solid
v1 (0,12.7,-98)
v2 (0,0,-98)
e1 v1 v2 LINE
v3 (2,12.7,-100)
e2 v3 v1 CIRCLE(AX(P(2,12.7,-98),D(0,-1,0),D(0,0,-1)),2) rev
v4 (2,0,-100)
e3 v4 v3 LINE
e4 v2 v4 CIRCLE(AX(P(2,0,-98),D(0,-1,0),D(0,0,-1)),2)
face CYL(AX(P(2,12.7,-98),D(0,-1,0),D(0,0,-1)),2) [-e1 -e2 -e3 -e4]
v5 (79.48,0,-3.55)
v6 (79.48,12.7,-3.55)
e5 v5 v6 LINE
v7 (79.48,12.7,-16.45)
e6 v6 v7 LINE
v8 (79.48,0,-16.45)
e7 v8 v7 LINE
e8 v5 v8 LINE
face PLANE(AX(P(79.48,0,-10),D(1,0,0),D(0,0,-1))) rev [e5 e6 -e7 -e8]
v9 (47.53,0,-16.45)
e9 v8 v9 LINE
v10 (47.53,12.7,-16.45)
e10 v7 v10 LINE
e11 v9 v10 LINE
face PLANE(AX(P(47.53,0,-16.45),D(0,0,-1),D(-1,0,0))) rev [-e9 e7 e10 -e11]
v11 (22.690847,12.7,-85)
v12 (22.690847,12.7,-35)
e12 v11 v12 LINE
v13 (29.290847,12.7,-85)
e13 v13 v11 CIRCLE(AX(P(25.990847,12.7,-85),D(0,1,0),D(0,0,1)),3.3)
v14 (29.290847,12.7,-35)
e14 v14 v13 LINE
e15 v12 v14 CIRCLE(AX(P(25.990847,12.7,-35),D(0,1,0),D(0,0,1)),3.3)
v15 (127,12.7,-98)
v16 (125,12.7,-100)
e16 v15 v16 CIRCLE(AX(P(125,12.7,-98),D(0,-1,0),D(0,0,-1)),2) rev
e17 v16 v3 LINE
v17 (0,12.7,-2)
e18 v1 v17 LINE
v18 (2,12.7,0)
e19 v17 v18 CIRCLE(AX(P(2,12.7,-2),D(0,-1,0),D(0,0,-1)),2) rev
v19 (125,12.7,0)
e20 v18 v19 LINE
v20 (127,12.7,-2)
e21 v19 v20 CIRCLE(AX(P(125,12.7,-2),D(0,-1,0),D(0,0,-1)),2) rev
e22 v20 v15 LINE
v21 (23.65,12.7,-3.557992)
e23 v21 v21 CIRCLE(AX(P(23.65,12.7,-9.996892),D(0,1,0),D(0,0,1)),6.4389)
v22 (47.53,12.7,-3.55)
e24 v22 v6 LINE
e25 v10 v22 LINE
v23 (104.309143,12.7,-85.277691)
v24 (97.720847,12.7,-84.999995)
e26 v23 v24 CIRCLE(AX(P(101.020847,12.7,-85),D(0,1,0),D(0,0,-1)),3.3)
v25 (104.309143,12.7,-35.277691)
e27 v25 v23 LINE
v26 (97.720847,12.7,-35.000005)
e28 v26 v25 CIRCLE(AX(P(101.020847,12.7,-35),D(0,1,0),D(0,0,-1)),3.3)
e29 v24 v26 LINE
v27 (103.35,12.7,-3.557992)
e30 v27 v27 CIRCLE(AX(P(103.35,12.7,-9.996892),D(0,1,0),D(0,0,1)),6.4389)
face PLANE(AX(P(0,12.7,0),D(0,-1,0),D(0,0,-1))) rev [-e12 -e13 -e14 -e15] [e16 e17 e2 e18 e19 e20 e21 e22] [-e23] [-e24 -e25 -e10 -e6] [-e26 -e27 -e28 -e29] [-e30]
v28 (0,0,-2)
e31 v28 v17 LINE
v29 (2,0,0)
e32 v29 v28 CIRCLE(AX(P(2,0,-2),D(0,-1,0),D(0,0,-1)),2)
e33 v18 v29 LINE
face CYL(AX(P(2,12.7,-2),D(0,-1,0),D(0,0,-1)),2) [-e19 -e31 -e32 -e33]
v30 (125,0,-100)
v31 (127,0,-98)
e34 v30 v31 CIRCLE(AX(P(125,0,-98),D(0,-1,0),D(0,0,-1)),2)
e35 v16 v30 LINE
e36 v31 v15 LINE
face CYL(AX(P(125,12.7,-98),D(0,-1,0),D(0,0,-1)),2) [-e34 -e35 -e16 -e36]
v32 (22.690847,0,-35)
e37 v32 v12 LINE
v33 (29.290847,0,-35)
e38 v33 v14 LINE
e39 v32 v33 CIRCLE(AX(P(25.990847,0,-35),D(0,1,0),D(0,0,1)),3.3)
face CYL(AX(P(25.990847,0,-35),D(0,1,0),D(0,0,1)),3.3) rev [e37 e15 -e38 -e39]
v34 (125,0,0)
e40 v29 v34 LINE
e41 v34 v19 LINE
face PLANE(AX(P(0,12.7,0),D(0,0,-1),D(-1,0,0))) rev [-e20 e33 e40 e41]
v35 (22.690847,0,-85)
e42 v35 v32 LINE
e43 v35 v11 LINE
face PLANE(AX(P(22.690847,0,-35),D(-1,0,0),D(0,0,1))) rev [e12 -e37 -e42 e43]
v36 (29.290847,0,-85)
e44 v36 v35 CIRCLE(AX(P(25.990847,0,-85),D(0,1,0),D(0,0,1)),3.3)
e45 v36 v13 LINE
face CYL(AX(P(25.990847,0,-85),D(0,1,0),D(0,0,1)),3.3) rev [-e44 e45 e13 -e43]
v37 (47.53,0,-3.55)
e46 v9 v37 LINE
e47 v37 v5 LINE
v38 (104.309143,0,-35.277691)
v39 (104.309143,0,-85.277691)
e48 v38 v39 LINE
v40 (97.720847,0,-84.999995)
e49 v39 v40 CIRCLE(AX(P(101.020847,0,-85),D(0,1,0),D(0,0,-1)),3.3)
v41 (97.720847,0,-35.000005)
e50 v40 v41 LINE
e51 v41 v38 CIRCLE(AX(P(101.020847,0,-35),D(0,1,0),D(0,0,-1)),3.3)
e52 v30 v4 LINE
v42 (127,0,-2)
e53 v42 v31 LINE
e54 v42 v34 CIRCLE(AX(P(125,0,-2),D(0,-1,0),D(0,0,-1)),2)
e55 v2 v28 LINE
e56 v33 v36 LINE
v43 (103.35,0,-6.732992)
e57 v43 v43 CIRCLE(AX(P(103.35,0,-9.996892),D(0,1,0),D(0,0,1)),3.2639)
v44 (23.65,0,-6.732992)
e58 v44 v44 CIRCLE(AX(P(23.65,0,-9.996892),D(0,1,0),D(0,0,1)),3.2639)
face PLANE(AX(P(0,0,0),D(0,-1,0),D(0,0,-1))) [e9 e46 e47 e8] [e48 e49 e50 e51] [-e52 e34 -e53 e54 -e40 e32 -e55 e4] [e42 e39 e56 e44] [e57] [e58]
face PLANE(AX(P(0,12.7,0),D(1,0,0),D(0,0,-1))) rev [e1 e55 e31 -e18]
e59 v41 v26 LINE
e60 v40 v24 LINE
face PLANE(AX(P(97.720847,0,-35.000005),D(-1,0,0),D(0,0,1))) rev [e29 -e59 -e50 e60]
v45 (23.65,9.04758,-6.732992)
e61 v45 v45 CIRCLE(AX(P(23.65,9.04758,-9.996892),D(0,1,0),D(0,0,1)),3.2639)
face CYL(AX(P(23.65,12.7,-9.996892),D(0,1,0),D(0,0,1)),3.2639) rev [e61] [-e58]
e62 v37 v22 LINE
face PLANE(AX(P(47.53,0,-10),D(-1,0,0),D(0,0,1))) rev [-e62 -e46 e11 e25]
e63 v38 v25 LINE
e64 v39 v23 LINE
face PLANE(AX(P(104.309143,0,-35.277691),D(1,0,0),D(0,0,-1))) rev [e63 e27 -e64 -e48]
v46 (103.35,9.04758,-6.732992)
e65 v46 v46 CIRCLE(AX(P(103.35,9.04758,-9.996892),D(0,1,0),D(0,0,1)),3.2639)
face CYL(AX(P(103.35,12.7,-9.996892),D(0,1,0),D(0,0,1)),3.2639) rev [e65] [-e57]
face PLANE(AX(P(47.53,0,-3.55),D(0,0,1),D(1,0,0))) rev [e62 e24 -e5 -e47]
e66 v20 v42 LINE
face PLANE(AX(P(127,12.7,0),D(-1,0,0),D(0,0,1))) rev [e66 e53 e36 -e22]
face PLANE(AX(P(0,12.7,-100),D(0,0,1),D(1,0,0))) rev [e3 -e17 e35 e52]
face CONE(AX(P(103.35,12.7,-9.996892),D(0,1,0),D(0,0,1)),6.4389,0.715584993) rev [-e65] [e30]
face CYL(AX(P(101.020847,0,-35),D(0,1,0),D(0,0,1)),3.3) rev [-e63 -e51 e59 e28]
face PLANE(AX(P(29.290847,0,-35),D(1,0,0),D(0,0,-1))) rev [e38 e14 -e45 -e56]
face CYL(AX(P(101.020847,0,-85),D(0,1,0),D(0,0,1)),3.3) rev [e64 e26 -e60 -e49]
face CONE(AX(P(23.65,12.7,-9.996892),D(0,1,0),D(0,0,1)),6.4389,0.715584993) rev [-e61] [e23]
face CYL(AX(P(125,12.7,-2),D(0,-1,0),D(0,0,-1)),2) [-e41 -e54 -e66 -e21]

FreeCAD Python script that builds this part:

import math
import FreeCAD as App
import Part
import Sketcher


def edges_at(feature, points):
    """Names of the edges that pass closest to the given points."""
    edges = feature.Shape.Edges
    near = lambda p: min(range(len(edges)), key=lambda i: edges[i].distToShape(Part.Vertex(*p))[0])
    return sorted({f"Edge{near(p) + 1}" for p in points})


def add_polygon(sketch, points):
    """Adds a closed chain of lines whose ends are joined by coincident constraints."""
    first, n = sketch.GeometryCount, len(points)
    for a, b in zip(points, points[1:] + points[:1]):
        sketch.addGeometry(Part.LineSegment(App.Vector(*a, 0), App.Vector(*b, 0)), False)
    for i in range(n):
        sketch.addConstraint(Sketcher.Constraint("Coincident", first + i, 2, first + (i + 1) % n, 1))

doc = App.newDocument("Part")
params = doc.addObject("Spreadsheet::Sheet", "Params")
for row, (alias, value) in enumerate([
    ("sketch1_width", "127 mm"),
    ("sketch1_height", "100 mm"),
    ("pad1_length", "12.7 mm"),
    ("sketch2_height", "12.9 mm"),
    ("sketch2_width", "31.95 mm"),
    ("pocket1_length", "12.7 mm"),
    ("sketch3_radius", "3.3 mm"),
    ("sketch3_height", "50 mm"),
    ("fillet_radius", "2 mm"),
    ("hole_diameter", "6.5278 mm"),
    ("hole_csink_diameter", "12.8778 mm"),
], start=1):
    params.set(f"A{row}", alias)
    params.set(f"B{row}", "=" + value)
    params.setAlias(f"B{row}", alias)

body = doc.addObject("PartDesign::Body", "Body")

sketch1 = body.newObject("Sketcher::SketchObject", "Sketch")
sketch1.AttachmentSupport = (doc.getObject("XZ_Plane"), [""])
sketch1.MapMode = "FlatFace"
add_polygon(sketch1, [(0, -100), (0, 0), (127, 0), (127, -100)])
sketch1.addConstraint(Sketcher.Constraint("Vertical", 0))
sketch1.addConstraint(Sketcher.Constraint("Horizontal", 1))
sketch1.addConstraint(Sketcher.Constraint("Vertical", 2))
sketch1.addConstraint(Sketcher.Constraint("Horizontal", 3))
sketch1.addConstraint(Sketcher.Constraint("Coincident", 0, 2, -1, 1))
sketch1.addConstraint(Sketcher.Constraint("DistanceX", 1, 1, 1, 2, 127.0))
sketch1.addConstraint(Sketcher.Constraint("DistanceY", 0, 1, 0, 2, 100.0))
sketch1.setExpression("Constraints[9]", "Params.sketch1_width")
sketch1.setExpression("Constraints[10]", "Params.sketch1_height")
pad1 = body.newObject("PartDesign::Pad", "Pad")
pad1.Profile = sketch1
pad1.setExpression("Length", "Params.pad1_length")
pad1.Reversed = True

sketch2 = body.newObject("Sketcher::SketchObject", "Sketch001")
sketch2.AttachmentSupport = (doc.getObject("XZ_Plane"), [""])
sketch2.MapMode = "FlatFace"
sketch2.AttachmentOffset = App.Placement(App.Vector(0, 0, -12.7), App.Rotation())
add_polygon(sketch2, [(48, -16), (48, -4), (79, -4), (79, -16)])
sketch2.addConstraint(Sketcher.Constraint("Vertical", 0))
sketch2.addConstraint(Sketcher.Constraint("Horizontal", 1))
sketch2.addConstraint(Sketcher.Constraint("Vertical", 2))
sketch2.addConstraint(Sketcher.Constraint("Horizontal", 3))
sketch2.addConstraint(Sketcher.Constraint("DistanceY", 0, 1, 0, 2, 12.9))
sketch2.addConstraint(Sketcher.Constraint("DistanceX", 1, 1, 1, 2, 31.95))
sketch2.addConstraint(Sketcher.Constraint("DistanceX", -1, 1, 0, 2, 47.53))
sketch2.addConstraint(Sketcher.Constraint("DistanceY", 0, 2, -1, 1, 3.55))
sketch2.setExpression("Constraints[8]", "Params.sketch2_height")
sketch2.setExpression("Constraints[9]", "Params.sketch2_width")
pocket1 = body.newObject("PartDesign::Pocket", "Pocket")
pocket1.Profile = sketch2
pocket1.setExpression("Length", "Params.pocket1_length")
pocket1.Reversed = True

sketch3 = body.newObject("Sketcher::SketchObject", "Sketch002")
sketch3.AttachmentSupport = (doc.getObject("XZ_Plane"), [""])
sketch3.MapMode = "FlatFace"
sketch3.AttachmentOffset = App.Placement(App.Vector(0, 0, -12.7), App.Rotation())
sketch3.addGeometry(Part.LineSegment(App.Vector(22.7, -85, 0), App.Vector(22.7, -35, 0)), False)
sketch3.addGeometry(Part.ArcOfCircle(Part.Circle(App.Vector(26, -35, 0), App.Vector(0, 0, 1), 3.3), math.radians(0), math.radians(180)), False)
sketch3.addGeometry(Part.LineSegment(App.Vector(29.3, -35, 0), App.Vector(29.3, -85, 0)), False)
sketch3.addGeometry(Part.ArcOfCircle(Part.Circle(App.Vector(26, -85, 0), App.Vector(0, 0, 1), 3.3), math.radians(180), math.radians(360)), False)
sketch3.addGeometry(Part.LineSegment(App.Vector(97.7, -85, 0), App.Vector(97.7, -35, 0)), False)
sketch3.addGeometry(Part.ArcOfCircle(Part.Circle(App.Vector(101, -35, 0), App.Vector(0, 0, 1), 3.3), math.radians(-5), math.radians(180)), False)
sketch3.addGeometry(Part.LineSegment(App.Vector(104.3, -35.3, 0), App.Vector(104.3, -85.3, 0)), False)
sketch3.addGeometry(Part.ArcOfCircle(Part.Circle(App.Vector(101, -85, 0), App.Vector(0, 0, 1), 3.3), math.radians(180), math.radians(355)), False)
sketch3.addConstraint(Sketcher.Constraint("Tangent", 0, 2, 1, 2))
sketch3.addConstraint(Sketcher.Constraint("Tangent", 1, 1, 2, 1))
sketch3.addConstraint(Sketcher.Constraint("Tangent", 2, 2, 3, 2))
sketch3.addConstraint(Sketcher.Constraint("Tangent", 3, 1, 0, 1))
sketch3.addConstraint(Sketcher.Constraint("Tangent", 4, 2, 5, 2))
sketch3.addConstraint(Sketcher.Constraint("Coincident", 5, 1, 6, 1))
sketch3.addConstraint(Sketcher.Constraint("Coincident", 6, 2, 7, 2))
sketch3.addConstraint(Sketcher.Constraint("Tangent", 7, 1, 4, 1))
sketch3.addConstraint(Sketcher.Constraint("Vertical", 0))
sketch3.addConstraint(Sketcher.Constraint("Vertical", 2))
sketch3.addConstraint(Sketcher.Constraint("Vertical", 4))
sketch3.addConstraint(Sketcher.Constraint("Vertical", 6))
sketch3.addConstraint(Sketcher.Constraint("Equal", 3, 5))
sketch3.addConstraint(Sketcher.Constraint("Equal", 5, 7))
sketch3.addConstraint(Sketcher.Constraint("Horizontal", 1, 3, 5, 3))
sketch3.addConstraint(Sketcher.Constraint("Horizontal", 3, 3, 7, 3))
sketch3.addConstraint(Sketcher.Constraint("Radius", 1, 3.3))
sketch3.addConstraint(Sketcher.Constraint("DistanceY", 0, 1, 0, 2, 50.0))
sketch3.addConstraint(Sketcher.Constraint("DistanceY", 1, 3, -1, 1, 35.0))
sketch3.addConstraint(Sketcher.Constraint("DistanceX", 1, 3, 5, 3, 75.03))
sketch3.addConstraint(Sketcher.Constraint("DistanceY", 5, 1, -1, 1, 35.277691))
sketch3.addConstraint(Sketcher.Constraint("DistanceX", -1, 1, 1, 3, 25.990847))
sketch3.setExpression("Constraints[16]", "Params.sketch3_radius")
sketch3.setExpression("Constraints[17]", "Params.sketch3_height")
pocket2 = body.newObject("PartDesign::Pocket", "Pocket001")
pocket2.Profile = sketch3
pocket2.Type = "ThroughAll"
pocket2.Reversed = True
doc.recompute()

fillet = body.newObject("PartDesign::Fillet", "Fillet")
fillet.Base = (pocket2, edges_at(pocket2, [
    (0, 6.35, -100),
    (127, 6.35, -100),
    (127, 6.35, 0),
    (0, 6.35, 0),
]))
fillet.setExpression("Radius", "Params.fillet_radius")

sketch4 = body.newObject("Sketcher::SketchObject", "Sketch003")
sketch4.AttachmentSupport = (doc.getObject("XZ_Plane"), [""])
sketch4.MapMode = "FlatFace"
sketch4.AttachmentOffset = App.Placement(App.Vector(0, 0, -12.7), App.Rotation())
sketch4.addGeometry(Part.Circle(App.Vector(23.6, -10, 0), App.Vector(0, 0, 1), 3.3), False)
sketch4.addGeometry(Part.Circle(App.Vector(103.3, -10, 0), App.Vector(0, 0, 1), 3.3), False)
sketch4.addConstraint(Sketcher.Constraint("Equal", 0, 1))
sketch4.addConstraint(Sketcher.Constraint("Horizontal", 0, 3, 1, 3))
sketch4.addConstraint(Sketcher.Constraint("Diameter", 0, 6.5278))
sketch4.addConstraint(Sketcher.Constraint("DistanceX", 0, 3, 1, 3, 79.7))
sketch4.addConstraint(Sketcher.Constraint("DistanceX", -1, 1, 0, 3, 23.65))
sketch4.addConstraint(Sketcher.Constraint("DistanceY", 0, 3, -1, 1, 9.996892))
doc.recompute()
hole = body.newObject("PartDesign::Hole", "Hole")
hole.Profile = sketch4
hole.ThreadType = "None"
hole.setExpression("Diameter", "Params.hole_diameter")
hole.DepthType = "ThroughAll"
hole.HoleCutType = "Countersink"
hole.setExpression("HoleCutDiameter", "Params.hole_csink_diameter")
hole.HoleCutCountersinkAngle = 82
hole.Reversed = True

doc.recompute()
